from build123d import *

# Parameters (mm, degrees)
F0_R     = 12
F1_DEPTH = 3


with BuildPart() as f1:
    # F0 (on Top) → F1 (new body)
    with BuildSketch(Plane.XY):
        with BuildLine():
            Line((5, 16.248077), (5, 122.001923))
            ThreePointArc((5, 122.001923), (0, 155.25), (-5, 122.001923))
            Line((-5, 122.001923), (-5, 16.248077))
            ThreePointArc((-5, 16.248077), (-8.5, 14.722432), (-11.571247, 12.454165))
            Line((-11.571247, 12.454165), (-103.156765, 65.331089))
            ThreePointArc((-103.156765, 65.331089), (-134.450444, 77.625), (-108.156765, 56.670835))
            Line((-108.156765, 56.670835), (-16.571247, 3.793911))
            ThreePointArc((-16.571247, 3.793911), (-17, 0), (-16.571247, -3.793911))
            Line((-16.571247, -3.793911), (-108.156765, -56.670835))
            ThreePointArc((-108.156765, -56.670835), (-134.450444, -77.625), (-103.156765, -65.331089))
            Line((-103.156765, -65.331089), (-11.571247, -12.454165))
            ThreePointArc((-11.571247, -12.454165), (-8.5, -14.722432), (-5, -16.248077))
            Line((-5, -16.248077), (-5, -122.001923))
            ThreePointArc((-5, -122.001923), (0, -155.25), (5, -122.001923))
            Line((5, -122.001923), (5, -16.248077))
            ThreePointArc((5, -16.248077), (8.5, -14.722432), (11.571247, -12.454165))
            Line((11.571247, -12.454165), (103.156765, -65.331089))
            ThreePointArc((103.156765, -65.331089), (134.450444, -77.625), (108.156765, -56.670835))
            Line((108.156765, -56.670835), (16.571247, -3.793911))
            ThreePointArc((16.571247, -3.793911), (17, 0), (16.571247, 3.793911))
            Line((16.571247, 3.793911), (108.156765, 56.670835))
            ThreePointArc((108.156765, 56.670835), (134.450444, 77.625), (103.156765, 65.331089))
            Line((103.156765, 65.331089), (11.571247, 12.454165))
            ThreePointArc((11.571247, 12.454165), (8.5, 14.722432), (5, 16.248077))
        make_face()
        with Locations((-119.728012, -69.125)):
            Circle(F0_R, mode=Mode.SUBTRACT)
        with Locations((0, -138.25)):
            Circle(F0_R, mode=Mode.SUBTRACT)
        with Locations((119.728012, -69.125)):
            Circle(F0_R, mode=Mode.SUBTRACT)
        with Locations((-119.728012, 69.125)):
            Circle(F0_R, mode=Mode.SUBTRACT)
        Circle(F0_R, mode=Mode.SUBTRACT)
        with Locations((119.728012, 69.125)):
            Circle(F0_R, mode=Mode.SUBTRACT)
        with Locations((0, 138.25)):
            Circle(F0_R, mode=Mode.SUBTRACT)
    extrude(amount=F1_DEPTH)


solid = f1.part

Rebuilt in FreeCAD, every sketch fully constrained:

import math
import FreeCAD as App
import Part
import Sketcher
from FreeCAD import Vector
Q = App.Units.Quantity

doc = App.newDocument("Part")
params = doc.addObject("Spreadsheet::Sheet", "Params")
for row, (alias, value) in enumerate([
    ("sketch1_diameter", "24 mm"),
    ("sketch1_radius", "17 mm"),
    ("pad1_length", "3 mm"),
], start=1):
    params.set(f"A{row}", alias)
    params.set(f"B{row}", "=" + value)
    params.setAlias(f"B{row}", alias)

body = doc.addObject("PartDesign::Body", "Body")

sketch1 = body.newObject("Sketcher::SketchObject", "Sketch")
sketch1.AttachmentSupport = (doc.getObject("XY_Plane"), [""])
sketch1.MapMode = "FlatFace"
sketch1.addGeometry([
    Part.LineSegment(Vector(5, 16.248077, 0), Vector(5, 122.001923, 0)),
    Part.ArcOfCircle(Part.Circle(Vector(0, 138.25, 0), Vector(0, 0, 1), 17), math.radians(-72.895365), math.radians(252.895365)),
    Part.LineSegment(Vector(-5, 122.001923, 0), Vector(-5, 16.248077, 0)),
    Part.ArcOfCircle(Part.Circle(Vector(-0.000004, 0.00001, 0), Vector(0, 0, 1), 16.999989), math.radians(107.104632), math.radians(132.895378)),
    Part.LineSegment(Vector(-11.571247, 12.454165, 0), Vector(-103.156765, 65.331089, 0)),
    Part.ArcOfCircle(Part.Circle(Vector(-119.728012, 69.125, 0), Vector(0, 0, 1), 17), math.radians(-12.895365), math.radians(312.895365)),
    Part.LineSegment(Vector(-108.156765, 56.670835, 0), Vector(-16.571247, 3.793911, 0)),
    Part.ArcOfCircle(Part.Circle(Vector(-0.000014, 0, 0), Vector(0, 0, 1), 16.999986), math.radians(167.104626), math.radians(192.895374)),
    Part.LineSegment(Vector(-16.571247, -3.793911, 0), Vector(-108.156765, -56.670835, 0)),
    Part.ArcOfCircle(Part.Circle(Vector(-119.728012, -69.125, 0), Vector(0, 0, 1), 17), math.radians(47.104635), math.radians(372.895365)),
    Part.LineSegment(Vector(-103.156765, -65.331089, 0), Vector(-11.571247, -12.454165, 0)),
    Part.ArcOfCircle(Part.Circle(Vector(-0.000004, -0.00001, 0), Vector(0, 0, 1), 16.999989), math.radians(-132.895378), math.radians(-107.104632)),
    Part.LineSegment(Vector(-5, -16.248077, 0), Vector(-5, -122.001923, 0)),
    Part.ArcOfCircle(Part.Circle(Vector(0, -138.25, 0), Vector(0, 0, 1), 17), math.radians(107.104635), math.radians(432.895365)),
    Part.LineSegment(Vector(5, -122.001923, 0), Vector(5, -16.248077, 0)),
    Part.ArcOfCircle(Part.Circle(Vector(0.000004, -0.00001, 0), Vector(0, 0, 1), 16.999989), math.radians(-72.895368), math.radians(-47.104622)),
    Part.LineSegment(Vector(11.571247, -12.454165, 0), Vector(103.156765, -65.331089, 0)),
    Part.ArcOfCircle(Part.Circle(Vector(119.728012, -69.125, 0), Vector(0, 0, 1), 17), math.radians(167.104635), math.radians(492.895365)),
    Part.LineSegment(Vector(108.156765, -56.670835, 0), Vector(16.571247, -3.793911, 0)),
    Part.ArcOfCircle(Part.Circle(Vector(0.000014, 0, 0), Vector(0, 0, 1), 16.999986), math.radians(-12.895374), math.radians(12.895374)),
    Part.LineSegment(Vector(16.571247, 3.793911, 0), Vector(108.156765, 56.670835, 0)),
    Part.ArcOfCircle(Part.Circle(Vector(119.728012, 69.125, 0), Vector(0, 0, 1), 17), math.radians(-132.895365), math.radians(192.895365)),
    Part.LineSegment(Vector(103.156765, 65.331089, 0), Vector(11.571247, 12.454165, 0)),
    Part.ArcOfCircle(Part.Circle(Vector(0.000004, 0.00001, 0), Vector(0, 0, 1), 16.999989), math.radians(47.104622), math.radians(72.895368)),
    Part.Circle(Vector(-119.728012, -69.125, 0), Vector(0, 0, 1), 12),
    Part.Circle(Vector(0, -138.25, 0), Vector(0, 0, 1), 12),
    Part.Circle(Vector(119.728012, -69.125, 0), Vector(0, 0, 1), 12),
    Part.Circle(Vector(-119.728012, 69.125, 0), Vector(0, 0, 1), 12),
    Part.Circle(Vector(0, 0, 0), Vector(0, 0, 1), 12),
    Part.Circle(Vector(119.728012, 69.125, 0), Vector(0, 0, 1), 12),
    Part.Circle(Vector(0, 138.25, 0), Vector(0, 0, 1), 12),
], False)
sketch1.addConstraint([
    Sketcher.Constraint("Coincident", 0, 2, 1, 1),
    Sketcher.Constraint("Coincident", 1, 2, 2, 1),
    Sketcher.Constraint("Coincident", 2, 2, 3, 1),
    Sketcher.Constraint("Coincident", 3, 2, 4, 1),
    Sketcher.Constraint("Coincident", 4, 2, 5, 1),
    Sketcher.Constraint("Coincident", 5, 2, 6, 1),
    Sketcher.Constraint("Coincident", 6, 2, 7, 1),
    Sketcher.Constraint("Coincident", 7, 2, 8, 1),
    Sketcher.Constraint("Coincident", 8, 2, 9, 1),
    Sketcher.Constraint("Coincident", 9, 2, 10, 1),
    Sketcher.Constraint("Coincident", 10, 2, 11, 1),
    Sketcher.Constraint("Coincident", 11, 2, 12, 1),
    Sketcher.Constraint("Coincident", 12, 2, 13, 1),
    Sketcher.Constraint("Coincident", 13, 2, 14, 1),
    Sketcher.Constraint("Coincident", 14, 2, 15, 1),
    Sketcher.Constraint("Coincident", 15, 2, 16, 1),
    Sketcher.Constraint("Coincident", 16, 2, 17, 1),
    Sketcher.Constraint("Coincident", 17, 2, 18, 1),
    Sketcher.Constraint("Coincident", 18, 2, 19, 1),
    Sketcher.Constraint("Coincident", 19, 2, 20, 1),
    Sketcher.Constraint("Coincident", 20, 2, 21, 1),
    Sketcher.Constraint("Coincident", 21, 2, 22, 1),
    Sketcher.Constraint("Coincident", 22, 2, 23, 1),
    Sketcher.Constraint("Coincident", 23, 2, 0, 1),
    Sketcher.Constraint("Vertical", 0),
    Sketcher.Constraint("Vertical", 2),
    Sketcher.Constraint("Vertical", 12),
    Sketcher.Constraint("Vertical", 14),
    Sketcher.Constraint("Coincident", 28, 3, -1, 1),
    Sketcher.Constraint("Coincident", 15, 3, 11, 3),
    Sketcher.Constraint("Coincident", 23, 3, 3, 3),
    Sketcher.Constraint("Coincident", 24, 3, 9, 3),
    Sketcher.Constraint("Coincident", 25, 3, 13, 3),
    Sketcher.Constraint("Coincident", 26, 3, 17, 3),
    Sketcher.Constraint("Coincident", 27, 3, 5, 3),
    Sketcher.Constraint("Coincident", 29, 3, 21, 3),
    Sketcher.Constraint("Coincident", 30, 3, 1, 3),
    Sketcher.Constraint("Equal", 1, 5),
    Sketcher.Constraint("Equal", 5, 9),
    Sketcher.Constraint("Equal", 3, 11),
    Sketcher.Constraint("Equal", 9, 13),
    Sketcher.Constraint("Equal", 11, 15),
    Sketcher.Constraint("Equal", 13, 17),
    Sketcher.Constraint("Equal", 7, 19),
    Sketcher.Constraint("Equal", 17, 21),
    Sketcher.Constraint("Equal", 15, 23),
    Sketcher.Constraint("Equal", 24, 25),
    Sketcher.Constraint("Equal", 25, 26),
    Sketcher.Constraint("Equal", 26, 27),
    Sketcher.Constraint("Equal", 27, 28),
    Sketcher.Constraint("Equal", 28, 29),
    Sketcher.Constraint("Equal", 29, 30),
    Sketcher.Constraint("Symmetric", 3, 3, 11, 3, -1, 1),
    Sketcher.Constraint("Symmetric", 1, 3, 13, 3, -1, 1),
    Sketcher.Constraint("Symmetric", 5, 3, 17, 3, -1, 1),
    Sketcher.Constraint("Symmetric", 7, 3, 19, 3, -1, 1),
    Sketcher.Constraint("Symmetric", 9, 3, 21, 3, -1, 1),
    Sketcher.Constraint("Symmetric", 9, 3, 17, 3, -2),
    Sketcher.Constraint("Symmetric", 0, 2, 1, 2, -2),
    Sketcher.Constraint("Symmetric", 11, 2, 14, 2, -2),
    Sketcher.Constraint("Symmetric", 7, 2, 18, 2, -2),
    Sketcher.Constraint("Parallel", 4, 6),
    Sketcher.Constraint("Parallel", 8, 10),
    Sketcher.Constraint("Parallel", 6, 16),
    Sketcher.Constraint("Parallel", 16, 18),
    Sketcher.Constraint("Parallel", 10, 20),
    Sketcher.Constraint("Parallel", 20, 22),
    Sketcher.Constraint("Horizontal", 10, 2, 15, 2),
    Sketcher.Constraint("Horizontal", 9, 2, 16, 2),
    Sketcher.Constraint("Horizontal", 6, 2, 19, 2),
    Sketcher.Constraint("Horizontal", 4, 2, 21, 2),
    Sketcher.Constraint("Vertical", 6, 2, 7, 2),
    Sketcher.Constraint("Vertical", 4, 2, 9, 2),
    Sketcher.Constraint("Vertical", 2, 2, 11, 2),
    Sketcher.Constraint("Equal", 4, 6),
    Sketcher.Constraint("Diameter", 24, Q("24 mm")),
    Sketcher.Constraint("Radius", 1, Q("17 mm")),
    Sketcher.Constraint("Angle", 4, Q("150 deg")),
    Sketcher.Constraint("DistanceX", -1, 1, 0, 2, Q("5 mm")),
    Sketcher.Constraint("DistanceX", 5, 2, 4, 2, Q("5 mm")),
    Sketcher.Constraint("DistanceY", -1, 1, 1, 3, Q("138.25 mm")),
    Sketcher.Constraint("Radius", 3, Q("16.999989 mm")),
    Sketcher.Constraint("DistanceY", 9, 3, 5, 3, Q("138.250001 mm")),
    Sketcher.Constraint("Radius", 7, Q("16.999986 mm")),
    Sketcher.Constraint("DistanceY", 9, 2, 6, 2, Q("69.125 mm")),
    Sketcher.Constraint("DistanceY", 3, 3, 6, 2, Q("3.793901 mm")),
    Sketcher.Constraint("DistanceY", 0, 1, 0, 2, Q("105.753846 mm")),
])
sketch1.setExpression("Constraints[75]", "Params.sketch1_diameter")
sketch1.setExpression("Constraints[76]", "Params.sketch1_radius")
pad1 = body.newObject("PartDesign::Pad", "Pad")
pad1.Profile = sketch1
pad1.setExpression("Length", "Params.pad1_length")

doc.recompute()
